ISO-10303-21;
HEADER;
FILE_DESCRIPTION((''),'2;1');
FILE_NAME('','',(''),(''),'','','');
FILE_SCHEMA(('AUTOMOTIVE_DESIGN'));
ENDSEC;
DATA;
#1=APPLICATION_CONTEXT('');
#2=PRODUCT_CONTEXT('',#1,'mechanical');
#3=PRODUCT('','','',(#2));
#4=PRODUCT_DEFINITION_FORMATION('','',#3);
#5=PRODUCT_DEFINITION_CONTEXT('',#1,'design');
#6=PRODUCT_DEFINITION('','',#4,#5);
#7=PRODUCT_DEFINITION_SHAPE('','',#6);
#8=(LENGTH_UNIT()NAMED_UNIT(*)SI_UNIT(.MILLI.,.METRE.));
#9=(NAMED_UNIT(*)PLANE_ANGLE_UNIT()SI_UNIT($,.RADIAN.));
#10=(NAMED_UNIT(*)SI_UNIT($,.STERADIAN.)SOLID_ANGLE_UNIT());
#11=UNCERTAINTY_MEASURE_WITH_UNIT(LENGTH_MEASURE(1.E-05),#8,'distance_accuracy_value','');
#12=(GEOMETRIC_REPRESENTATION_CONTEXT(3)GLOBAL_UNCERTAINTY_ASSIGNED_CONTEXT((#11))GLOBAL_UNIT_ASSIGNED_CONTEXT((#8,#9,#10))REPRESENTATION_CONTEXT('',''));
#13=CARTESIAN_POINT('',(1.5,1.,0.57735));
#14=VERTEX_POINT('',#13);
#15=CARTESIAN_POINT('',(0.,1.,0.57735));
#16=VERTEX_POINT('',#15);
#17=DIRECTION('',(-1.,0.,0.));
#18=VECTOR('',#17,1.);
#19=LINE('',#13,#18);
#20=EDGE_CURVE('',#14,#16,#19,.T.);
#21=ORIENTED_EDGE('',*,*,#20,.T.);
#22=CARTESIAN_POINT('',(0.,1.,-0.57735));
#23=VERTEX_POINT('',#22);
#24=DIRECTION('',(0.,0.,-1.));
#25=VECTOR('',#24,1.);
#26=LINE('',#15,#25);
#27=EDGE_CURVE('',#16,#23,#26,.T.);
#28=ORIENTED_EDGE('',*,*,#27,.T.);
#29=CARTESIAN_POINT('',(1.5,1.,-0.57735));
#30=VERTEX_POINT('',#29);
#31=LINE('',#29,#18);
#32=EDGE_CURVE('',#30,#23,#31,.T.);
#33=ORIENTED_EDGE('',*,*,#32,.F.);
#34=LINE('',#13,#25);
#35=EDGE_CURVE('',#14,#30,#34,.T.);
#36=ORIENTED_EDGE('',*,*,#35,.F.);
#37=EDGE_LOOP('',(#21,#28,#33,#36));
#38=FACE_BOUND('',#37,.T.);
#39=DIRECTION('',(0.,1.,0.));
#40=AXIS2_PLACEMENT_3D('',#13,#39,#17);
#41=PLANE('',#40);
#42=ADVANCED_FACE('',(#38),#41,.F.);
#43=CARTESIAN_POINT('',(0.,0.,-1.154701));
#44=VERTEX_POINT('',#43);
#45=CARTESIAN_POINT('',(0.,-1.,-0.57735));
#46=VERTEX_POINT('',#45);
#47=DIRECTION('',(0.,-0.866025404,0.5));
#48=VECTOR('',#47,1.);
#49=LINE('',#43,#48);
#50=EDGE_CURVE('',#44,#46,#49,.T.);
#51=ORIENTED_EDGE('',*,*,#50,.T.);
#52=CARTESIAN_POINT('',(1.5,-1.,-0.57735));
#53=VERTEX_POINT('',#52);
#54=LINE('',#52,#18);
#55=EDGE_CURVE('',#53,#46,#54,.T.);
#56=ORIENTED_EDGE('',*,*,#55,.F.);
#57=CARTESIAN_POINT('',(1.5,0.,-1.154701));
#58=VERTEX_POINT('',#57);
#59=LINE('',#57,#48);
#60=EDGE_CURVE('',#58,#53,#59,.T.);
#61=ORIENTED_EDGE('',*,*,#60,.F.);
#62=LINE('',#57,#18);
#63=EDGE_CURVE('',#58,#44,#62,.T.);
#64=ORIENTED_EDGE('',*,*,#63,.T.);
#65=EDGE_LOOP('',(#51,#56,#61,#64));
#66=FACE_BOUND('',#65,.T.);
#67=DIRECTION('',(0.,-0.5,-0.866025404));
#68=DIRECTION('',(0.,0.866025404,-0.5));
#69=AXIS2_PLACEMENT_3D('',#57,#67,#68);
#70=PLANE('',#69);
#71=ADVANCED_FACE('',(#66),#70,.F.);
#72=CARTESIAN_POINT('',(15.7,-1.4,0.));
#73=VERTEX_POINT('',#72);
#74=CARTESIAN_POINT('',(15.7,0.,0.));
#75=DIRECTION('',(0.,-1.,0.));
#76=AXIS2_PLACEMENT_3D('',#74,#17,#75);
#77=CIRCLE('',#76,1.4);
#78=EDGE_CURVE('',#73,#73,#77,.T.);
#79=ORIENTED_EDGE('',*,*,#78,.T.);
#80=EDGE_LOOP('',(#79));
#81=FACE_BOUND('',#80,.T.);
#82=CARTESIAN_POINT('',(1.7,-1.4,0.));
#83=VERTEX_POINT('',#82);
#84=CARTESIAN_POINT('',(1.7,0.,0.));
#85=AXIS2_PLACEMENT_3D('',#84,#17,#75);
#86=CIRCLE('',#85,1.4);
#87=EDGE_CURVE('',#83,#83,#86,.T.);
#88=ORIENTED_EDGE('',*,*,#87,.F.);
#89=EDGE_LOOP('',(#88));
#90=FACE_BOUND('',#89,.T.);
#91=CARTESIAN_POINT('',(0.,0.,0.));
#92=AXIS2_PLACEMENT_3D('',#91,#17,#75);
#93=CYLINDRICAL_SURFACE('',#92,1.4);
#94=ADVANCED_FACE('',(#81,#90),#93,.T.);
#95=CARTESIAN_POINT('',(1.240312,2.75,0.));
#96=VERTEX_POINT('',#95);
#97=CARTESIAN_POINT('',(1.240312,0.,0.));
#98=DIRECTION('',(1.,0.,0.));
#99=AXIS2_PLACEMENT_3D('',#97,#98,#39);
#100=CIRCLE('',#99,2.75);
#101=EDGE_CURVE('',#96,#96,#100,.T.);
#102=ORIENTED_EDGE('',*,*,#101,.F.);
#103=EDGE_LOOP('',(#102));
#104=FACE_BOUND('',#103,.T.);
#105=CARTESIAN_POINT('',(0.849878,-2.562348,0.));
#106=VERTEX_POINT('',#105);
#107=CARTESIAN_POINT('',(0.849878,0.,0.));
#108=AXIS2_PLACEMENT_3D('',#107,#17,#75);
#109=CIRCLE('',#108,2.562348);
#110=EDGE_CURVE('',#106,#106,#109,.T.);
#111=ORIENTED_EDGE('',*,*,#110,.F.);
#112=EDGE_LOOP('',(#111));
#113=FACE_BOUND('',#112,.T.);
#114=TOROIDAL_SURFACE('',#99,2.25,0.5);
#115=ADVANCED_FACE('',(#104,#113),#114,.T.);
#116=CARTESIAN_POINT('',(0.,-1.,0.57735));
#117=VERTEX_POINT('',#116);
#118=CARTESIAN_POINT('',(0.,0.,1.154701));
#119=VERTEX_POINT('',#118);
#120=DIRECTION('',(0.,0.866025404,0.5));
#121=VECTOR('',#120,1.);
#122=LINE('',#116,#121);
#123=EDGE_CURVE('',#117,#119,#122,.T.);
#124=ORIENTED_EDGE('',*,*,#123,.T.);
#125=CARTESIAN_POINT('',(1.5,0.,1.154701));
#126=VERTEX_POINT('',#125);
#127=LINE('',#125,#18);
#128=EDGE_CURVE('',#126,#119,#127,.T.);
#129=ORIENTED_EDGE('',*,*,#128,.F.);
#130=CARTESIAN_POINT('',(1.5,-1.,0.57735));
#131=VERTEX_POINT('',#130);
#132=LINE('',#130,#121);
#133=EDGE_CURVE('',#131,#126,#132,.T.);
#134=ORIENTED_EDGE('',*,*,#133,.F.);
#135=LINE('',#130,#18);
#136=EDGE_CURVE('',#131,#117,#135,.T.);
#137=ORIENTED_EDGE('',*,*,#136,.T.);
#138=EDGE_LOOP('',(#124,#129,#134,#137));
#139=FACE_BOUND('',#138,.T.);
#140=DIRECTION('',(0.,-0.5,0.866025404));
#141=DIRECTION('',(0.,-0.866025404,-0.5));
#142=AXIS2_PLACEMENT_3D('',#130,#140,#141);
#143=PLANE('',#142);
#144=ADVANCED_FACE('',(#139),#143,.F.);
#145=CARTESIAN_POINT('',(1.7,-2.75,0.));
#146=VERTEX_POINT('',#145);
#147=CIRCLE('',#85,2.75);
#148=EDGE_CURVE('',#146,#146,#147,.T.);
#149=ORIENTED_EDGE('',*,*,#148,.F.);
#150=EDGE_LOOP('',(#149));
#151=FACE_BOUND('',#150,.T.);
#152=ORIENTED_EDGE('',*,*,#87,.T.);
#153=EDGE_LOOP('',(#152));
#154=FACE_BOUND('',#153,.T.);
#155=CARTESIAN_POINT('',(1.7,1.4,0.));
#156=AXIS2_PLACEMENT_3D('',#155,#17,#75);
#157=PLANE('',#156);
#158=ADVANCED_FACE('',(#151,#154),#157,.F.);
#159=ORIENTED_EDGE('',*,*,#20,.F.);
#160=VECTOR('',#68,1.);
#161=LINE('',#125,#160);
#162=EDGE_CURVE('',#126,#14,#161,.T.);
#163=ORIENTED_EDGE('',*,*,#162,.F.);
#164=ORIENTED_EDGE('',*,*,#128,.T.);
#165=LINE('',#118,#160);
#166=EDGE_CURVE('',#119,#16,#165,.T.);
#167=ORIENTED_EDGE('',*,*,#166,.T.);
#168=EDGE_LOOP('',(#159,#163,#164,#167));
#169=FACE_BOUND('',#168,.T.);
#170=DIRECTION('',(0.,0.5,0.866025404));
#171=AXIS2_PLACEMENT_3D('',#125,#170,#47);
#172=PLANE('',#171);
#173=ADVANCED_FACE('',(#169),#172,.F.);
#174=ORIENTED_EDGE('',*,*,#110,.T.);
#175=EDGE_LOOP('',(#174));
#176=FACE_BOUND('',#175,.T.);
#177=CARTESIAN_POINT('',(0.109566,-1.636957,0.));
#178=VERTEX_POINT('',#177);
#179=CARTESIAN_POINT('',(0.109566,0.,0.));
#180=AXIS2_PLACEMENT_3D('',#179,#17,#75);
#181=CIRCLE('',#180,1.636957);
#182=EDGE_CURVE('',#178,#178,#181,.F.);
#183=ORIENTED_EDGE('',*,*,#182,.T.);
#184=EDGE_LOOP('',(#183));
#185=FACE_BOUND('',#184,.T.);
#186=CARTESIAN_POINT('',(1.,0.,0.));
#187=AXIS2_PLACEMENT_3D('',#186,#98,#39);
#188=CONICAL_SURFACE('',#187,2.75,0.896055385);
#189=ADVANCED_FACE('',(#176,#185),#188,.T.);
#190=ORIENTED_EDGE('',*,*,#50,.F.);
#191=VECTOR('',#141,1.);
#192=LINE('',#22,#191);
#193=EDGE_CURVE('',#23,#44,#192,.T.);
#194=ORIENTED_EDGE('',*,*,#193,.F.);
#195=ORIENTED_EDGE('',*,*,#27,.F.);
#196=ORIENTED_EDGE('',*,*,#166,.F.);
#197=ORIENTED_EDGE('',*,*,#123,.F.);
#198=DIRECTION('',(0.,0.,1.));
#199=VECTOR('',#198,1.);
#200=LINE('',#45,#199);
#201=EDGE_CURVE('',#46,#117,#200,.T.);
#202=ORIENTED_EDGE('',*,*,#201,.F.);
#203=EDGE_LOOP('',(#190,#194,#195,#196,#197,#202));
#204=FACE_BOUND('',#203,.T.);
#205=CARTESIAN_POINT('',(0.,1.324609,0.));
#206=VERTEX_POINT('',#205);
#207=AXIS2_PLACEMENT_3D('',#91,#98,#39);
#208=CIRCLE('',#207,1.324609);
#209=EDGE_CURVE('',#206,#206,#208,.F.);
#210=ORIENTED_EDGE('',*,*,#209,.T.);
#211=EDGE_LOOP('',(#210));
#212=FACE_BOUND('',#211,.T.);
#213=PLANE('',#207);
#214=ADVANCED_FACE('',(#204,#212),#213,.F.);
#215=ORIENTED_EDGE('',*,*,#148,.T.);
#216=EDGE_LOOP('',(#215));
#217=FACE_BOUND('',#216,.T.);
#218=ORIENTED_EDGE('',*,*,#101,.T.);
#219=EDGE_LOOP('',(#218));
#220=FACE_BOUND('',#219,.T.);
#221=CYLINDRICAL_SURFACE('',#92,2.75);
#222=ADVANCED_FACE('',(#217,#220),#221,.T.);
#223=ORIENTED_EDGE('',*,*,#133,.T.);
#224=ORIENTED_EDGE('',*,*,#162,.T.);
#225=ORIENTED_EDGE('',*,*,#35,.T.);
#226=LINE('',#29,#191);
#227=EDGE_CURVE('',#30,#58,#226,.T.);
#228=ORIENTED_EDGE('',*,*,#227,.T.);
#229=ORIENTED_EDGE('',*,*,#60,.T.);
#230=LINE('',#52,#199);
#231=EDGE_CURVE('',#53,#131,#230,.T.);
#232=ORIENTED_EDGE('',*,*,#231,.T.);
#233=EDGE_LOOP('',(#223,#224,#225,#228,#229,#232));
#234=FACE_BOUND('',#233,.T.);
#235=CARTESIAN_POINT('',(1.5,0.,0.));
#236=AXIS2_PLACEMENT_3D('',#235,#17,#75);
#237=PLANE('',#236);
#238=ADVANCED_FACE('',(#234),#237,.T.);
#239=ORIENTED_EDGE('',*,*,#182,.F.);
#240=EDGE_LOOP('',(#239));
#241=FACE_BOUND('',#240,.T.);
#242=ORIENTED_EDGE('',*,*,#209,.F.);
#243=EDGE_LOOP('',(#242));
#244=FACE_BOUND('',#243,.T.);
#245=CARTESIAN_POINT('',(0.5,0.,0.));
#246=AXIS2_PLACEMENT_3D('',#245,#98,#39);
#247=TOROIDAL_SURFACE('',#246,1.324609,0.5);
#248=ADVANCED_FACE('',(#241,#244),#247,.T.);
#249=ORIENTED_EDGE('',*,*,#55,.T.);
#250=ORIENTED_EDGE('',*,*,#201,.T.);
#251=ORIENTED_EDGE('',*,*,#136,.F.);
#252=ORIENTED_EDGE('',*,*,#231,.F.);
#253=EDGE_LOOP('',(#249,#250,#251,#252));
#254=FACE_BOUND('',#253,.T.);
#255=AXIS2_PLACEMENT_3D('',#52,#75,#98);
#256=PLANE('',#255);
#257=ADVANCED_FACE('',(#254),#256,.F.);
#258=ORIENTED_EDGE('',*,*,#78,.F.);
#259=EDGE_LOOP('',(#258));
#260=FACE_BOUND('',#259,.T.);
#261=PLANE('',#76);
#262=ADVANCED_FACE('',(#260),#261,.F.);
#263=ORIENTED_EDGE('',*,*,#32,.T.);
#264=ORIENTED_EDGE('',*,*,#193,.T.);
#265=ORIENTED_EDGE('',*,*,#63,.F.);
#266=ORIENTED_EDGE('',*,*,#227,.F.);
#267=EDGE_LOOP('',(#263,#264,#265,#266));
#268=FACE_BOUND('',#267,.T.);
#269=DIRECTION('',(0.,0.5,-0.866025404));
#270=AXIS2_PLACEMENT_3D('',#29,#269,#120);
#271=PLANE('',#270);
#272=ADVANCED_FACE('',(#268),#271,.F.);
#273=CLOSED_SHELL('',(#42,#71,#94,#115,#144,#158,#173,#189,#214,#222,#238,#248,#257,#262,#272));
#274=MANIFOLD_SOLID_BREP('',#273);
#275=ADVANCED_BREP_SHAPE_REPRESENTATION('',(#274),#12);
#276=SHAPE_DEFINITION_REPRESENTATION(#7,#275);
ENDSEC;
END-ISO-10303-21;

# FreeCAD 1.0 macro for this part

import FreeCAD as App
import Part
import Sketcher
from FreeCAD import Vector
Q = App.Units.Quantity


def edges_at(feature, points):
    """Names of the edges that pass closest to the given points."""
    edges = feature.Shape.Edges
    near = lambda p: min(range(len(edges)), key=lambda i: edges[i].distToShape(Part.Vertex(*p))[0])
    return sorted({f"Edge{near(p) + 1}" for p in points})


def add_polygon(sketch, points):
    """Adds a closed chain of lines whose ends are joined by coincident constraints."""
    first, n = sketch.GeometryCount, len(points)
    for a, b in zip(points, points[1:] + points[:1]):
        sketch.addGeometry(Part.LineSegment(App.Vector(*a, 0), App.Vector(*b, 0)), False)
    for i in range(n):
        sketch.addConstraint(Sketcher.Constraint("Coincident", first + i, 2, first + (i + 1) % n, 1))

doc = App.newDocument("Part")
body = doc.addObject("PartDesign::Body", "Body")

# Sketch on XY plane
sketch1 = doc.addObject("Sketcher::SketchObject", "Sketch")
body.addObject(sketch1)
sketch1.AttachmentSupport = (doc.XY_Plane, [""])
sketch1.MapMode = "FlatFace"
add_polygon(sketch1, [(15.7, 0), (15.7, 1.4), (1.7, 1.4), (1.7, 2.75), (1, 2.75), (0, 1.5), (0, 0)])  # lines 0-6
sketch1.addConstraint([
    Sketcher.Constraint("Vertical", 0),
    Sketcher.Constraint("Horizontal", 1),
    Sketcher.Constraint("Vertical", 2),
    Sketcher.Constraint("Horizontal", 3),
    Sketcher.Constraint("Vertical", 5),
    Sketcher.Constraint("Horizontal", 6),
    Sketcher.Constraint("Coincident", 5, 2, -1, 1),
    Sketcher.Constraint("DistanceX", 1, 2, 1, 1, 14.0),
    Sketcher.Constraint("DistanceX", 3, 2, 3, 1, 0.7),
    Sketcher.Constraint("DistanceX", 6, 1, 6, 2, 15.7),
    Sketcher.Constraint("DistanceY", 0, 1, 0, 2, 1.4),
    Sketcher.Constraint("DistanceY", 5, 2, 5, 1, 1.5),
    Sketcher.Constraint("DistanceY", 2, 1, 2, 2, 1.35),
])
revolution = doc.addObject("PartDesign::Revolution", "Revolution")
body.addObject(revolution)
revolution.Profile = sketch1
revolution.ReferenceAxis = (sketch1, ["H_Axis"])
revolution.Angle = 360

# Sketch on YZ plane
sketch2 = doc.addObject("Sketcher::SketchObject", "Sketch001")
body.addObject(sketch2)
sketch2.AttachmentSupport = (doc.YZ_Plane, [""])
sketch2.MapMode = "FlatFace"
add_polygon(sketch2, [(0, 1.154701), (1, 0.57735), (1, -0.57735), (0, -1.154701), (-1, -0.57735), (-1, 0.57735)])  # lines 0-5
sketch2.addConstraint([
    Sketcher.Constraint("Vertical", 1),
    Sketcher.Constraint("Vertical", 4),
    Sketcher.Constraint("Symmetric", 0, 2, 3, 2, -1, 1),
    Sketcher.Constraint("Symmetric", 2, 2, 5, 2, -1, 1),
    Sketcher.Constraint("PointOnObject", 2, 2, -2),
    Sketcher.Constraint("Parallel", 2, 5),
    Sketcher.Constraint("Horizontal", 1, 2, 3, 2),
    Sketcher.Constraint("Angle", 0, Q("-30 deg")),
    Sketcher.Constraint("DistanceX", -1, 1, 0, 2, 1.0),
    Sketcher.Constraint("DistanceY", 1, 2, 1, 1, 1.154701),
])
pocket1 = doc.addObject("PartDesign::Pocket", "Pocket")
body.addObject(pocket1)
pocket1.Profile = sketch2
pocket1.Length = 1.5
pocket1.Reversed = True
doc.recompute()

fillet = doc.addObject("PartDesign::Fillet", "Fillet")
body.addObject(fillet)
fillet.Base = (pocket1, edges_at(pocket1, [(1, 2.75, 0), (0, 1.5, 0)]))
fillet.Radius = 0.5

doc.recompute()
